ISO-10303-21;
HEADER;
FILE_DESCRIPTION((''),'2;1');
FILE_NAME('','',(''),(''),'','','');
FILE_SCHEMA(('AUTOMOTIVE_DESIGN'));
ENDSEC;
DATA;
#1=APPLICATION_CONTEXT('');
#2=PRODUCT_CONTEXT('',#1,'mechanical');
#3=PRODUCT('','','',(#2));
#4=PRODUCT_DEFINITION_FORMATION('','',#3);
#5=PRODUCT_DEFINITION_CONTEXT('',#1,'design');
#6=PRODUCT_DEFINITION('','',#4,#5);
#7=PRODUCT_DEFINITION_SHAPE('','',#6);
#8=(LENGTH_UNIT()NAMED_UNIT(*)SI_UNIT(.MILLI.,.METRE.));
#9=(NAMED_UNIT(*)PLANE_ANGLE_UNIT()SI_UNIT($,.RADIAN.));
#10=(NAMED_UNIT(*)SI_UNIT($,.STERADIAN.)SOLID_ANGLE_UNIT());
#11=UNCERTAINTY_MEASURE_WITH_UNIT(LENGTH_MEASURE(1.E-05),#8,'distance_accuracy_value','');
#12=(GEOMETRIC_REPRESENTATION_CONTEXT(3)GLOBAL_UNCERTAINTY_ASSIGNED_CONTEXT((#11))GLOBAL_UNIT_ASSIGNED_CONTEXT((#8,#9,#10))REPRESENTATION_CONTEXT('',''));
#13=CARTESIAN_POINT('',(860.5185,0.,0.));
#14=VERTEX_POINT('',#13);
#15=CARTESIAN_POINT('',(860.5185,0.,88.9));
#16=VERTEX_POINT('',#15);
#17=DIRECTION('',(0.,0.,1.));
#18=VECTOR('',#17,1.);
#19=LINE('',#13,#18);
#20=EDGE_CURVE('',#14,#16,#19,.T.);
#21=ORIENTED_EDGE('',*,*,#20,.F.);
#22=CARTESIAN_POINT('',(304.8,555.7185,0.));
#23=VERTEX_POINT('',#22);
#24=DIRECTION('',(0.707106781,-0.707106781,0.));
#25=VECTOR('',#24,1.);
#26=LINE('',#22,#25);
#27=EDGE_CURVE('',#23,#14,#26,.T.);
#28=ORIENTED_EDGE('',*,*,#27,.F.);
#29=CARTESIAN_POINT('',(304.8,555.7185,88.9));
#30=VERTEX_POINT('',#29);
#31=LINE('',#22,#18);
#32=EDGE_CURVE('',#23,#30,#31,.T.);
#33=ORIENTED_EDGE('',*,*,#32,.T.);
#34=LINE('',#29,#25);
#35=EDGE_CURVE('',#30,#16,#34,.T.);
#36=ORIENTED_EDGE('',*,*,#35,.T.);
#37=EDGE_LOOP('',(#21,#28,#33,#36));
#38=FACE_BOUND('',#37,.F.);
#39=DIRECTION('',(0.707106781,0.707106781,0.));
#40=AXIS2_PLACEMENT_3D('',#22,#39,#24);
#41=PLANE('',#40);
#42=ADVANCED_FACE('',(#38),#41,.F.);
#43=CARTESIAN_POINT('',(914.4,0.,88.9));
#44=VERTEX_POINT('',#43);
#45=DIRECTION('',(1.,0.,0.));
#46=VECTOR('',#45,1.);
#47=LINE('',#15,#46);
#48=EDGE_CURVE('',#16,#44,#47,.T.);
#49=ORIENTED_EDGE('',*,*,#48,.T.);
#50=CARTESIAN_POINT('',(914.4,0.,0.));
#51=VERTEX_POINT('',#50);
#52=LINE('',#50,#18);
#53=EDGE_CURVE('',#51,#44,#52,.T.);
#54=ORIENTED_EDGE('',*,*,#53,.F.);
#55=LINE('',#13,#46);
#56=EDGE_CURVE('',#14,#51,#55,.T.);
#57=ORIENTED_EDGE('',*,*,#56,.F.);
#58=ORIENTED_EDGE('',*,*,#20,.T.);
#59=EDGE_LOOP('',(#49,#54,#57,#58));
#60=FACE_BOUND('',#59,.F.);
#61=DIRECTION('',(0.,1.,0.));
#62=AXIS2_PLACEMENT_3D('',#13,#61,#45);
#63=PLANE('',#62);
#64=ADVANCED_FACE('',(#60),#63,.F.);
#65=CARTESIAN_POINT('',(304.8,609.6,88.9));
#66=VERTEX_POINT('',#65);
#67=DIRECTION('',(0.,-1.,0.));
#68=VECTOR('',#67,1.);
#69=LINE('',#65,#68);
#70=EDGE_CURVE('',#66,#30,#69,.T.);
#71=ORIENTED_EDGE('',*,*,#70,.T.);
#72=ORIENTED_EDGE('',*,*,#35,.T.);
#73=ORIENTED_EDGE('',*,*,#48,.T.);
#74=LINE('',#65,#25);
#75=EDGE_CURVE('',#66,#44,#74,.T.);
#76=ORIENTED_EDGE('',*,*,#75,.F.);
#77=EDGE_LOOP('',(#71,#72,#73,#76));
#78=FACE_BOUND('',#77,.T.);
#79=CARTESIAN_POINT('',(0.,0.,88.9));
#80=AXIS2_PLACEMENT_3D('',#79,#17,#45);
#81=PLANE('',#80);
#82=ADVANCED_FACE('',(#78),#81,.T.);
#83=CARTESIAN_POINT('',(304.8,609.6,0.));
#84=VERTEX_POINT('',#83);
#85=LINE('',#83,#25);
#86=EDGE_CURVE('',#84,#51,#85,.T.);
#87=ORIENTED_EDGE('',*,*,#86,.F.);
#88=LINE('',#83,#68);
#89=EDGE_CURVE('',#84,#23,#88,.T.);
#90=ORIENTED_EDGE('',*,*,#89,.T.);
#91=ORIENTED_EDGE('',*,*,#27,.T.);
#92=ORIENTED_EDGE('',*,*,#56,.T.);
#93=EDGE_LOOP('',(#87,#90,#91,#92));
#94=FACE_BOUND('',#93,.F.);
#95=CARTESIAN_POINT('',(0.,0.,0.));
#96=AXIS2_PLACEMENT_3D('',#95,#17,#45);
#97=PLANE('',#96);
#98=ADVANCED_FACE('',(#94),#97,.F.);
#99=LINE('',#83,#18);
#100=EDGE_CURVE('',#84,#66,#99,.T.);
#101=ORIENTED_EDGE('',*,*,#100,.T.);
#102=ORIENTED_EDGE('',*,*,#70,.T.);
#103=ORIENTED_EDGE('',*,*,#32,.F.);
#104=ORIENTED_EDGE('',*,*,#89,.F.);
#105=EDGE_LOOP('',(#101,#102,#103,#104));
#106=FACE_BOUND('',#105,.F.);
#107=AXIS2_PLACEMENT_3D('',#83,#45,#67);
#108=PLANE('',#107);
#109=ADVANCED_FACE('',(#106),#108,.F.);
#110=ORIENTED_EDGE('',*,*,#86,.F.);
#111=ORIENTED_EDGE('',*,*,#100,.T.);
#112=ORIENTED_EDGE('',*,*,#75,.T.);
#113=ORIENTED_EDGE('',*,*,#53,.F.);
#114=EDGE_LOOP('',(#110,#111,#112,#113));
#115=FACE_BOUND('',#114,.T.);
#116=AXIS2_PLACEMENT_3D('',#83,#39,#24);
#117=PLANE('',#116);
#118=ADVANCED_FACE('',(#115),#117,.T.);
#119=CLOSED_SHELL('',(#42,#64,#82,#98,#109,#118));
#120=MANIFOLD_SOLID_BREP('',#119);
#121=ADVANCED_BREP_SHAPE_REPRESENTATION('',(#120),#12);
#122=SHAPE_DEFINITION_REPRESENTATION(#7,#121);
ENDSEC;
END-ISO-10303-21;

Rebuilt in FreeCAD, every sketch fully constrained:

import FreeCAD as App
import Part
import Sketcher
Q = App.Units.Quantity

doc = App.newDocument("Part")
body = doc.addObject("PartDesign::Body", "Body")

sketch1 = body.newObject("Sketcher::SketchObject", "Sketch")
sketch1.AttachmentSupport = (doc.getObject("XY_Plane"), [""])
sketch1.MapMode = "FlatFace"
sketch1.addGeometry([
    Part.LineSegment(App.Vector(304.8, 555.7185, 0), App.Vector(860.5185, 0, 0)),
    Part.LineSegment(App.Vector(860.5185, 0, 0), App.Vector(914.4, 0, 0)),
    Part.LineSegment(App.Vector(914.4, 0, 0), App.Vector(304.8, 609.6, 0)),
    Part.LineSegment(App.Vector(304.8, 609.6, 0), App.Vector(304.8, 555.7185, 0)),
], False)
sketch1.addConstraint([
    Sketcher.Constraint("Coincident", 0, 2, 1, 1),
    Sketcher.Constraint("Coincident", 1, 2, 2, 1),
    Sketcher.Constraint("Coincident", 2, 2, 3, 1),
    Sketcher.Constraint("Coincident", 3, 2, 0, 1),
    Sketcher.Constraint("Horizontal", 1),
    Sketcher.Constraint("Vertical", 3),
    Sketcher.Constraint("PointOnObject", 0, 2, -1),
    Sketcher.Constraint("Parallel", 0, 2),
    Sketcher.Constraint("Equal", 1, 3),
    Sketcher.Constraint("DistanceX", -1, 1, 1, 2, Q("36 in")),
    Sketcher.Constraint("DistanceX", -1, 1, 2, 2, Q("12 in")),
    Sketcher.Constraint("DistanceX", 1, 1, 1, 2, 53.8815),
])
pad1 = body.newObject("PartDesign::Pad", "Pad")
pad1.Profile = sketch1
pad1.Length = Q("3.5 in")

doc.recompute()
